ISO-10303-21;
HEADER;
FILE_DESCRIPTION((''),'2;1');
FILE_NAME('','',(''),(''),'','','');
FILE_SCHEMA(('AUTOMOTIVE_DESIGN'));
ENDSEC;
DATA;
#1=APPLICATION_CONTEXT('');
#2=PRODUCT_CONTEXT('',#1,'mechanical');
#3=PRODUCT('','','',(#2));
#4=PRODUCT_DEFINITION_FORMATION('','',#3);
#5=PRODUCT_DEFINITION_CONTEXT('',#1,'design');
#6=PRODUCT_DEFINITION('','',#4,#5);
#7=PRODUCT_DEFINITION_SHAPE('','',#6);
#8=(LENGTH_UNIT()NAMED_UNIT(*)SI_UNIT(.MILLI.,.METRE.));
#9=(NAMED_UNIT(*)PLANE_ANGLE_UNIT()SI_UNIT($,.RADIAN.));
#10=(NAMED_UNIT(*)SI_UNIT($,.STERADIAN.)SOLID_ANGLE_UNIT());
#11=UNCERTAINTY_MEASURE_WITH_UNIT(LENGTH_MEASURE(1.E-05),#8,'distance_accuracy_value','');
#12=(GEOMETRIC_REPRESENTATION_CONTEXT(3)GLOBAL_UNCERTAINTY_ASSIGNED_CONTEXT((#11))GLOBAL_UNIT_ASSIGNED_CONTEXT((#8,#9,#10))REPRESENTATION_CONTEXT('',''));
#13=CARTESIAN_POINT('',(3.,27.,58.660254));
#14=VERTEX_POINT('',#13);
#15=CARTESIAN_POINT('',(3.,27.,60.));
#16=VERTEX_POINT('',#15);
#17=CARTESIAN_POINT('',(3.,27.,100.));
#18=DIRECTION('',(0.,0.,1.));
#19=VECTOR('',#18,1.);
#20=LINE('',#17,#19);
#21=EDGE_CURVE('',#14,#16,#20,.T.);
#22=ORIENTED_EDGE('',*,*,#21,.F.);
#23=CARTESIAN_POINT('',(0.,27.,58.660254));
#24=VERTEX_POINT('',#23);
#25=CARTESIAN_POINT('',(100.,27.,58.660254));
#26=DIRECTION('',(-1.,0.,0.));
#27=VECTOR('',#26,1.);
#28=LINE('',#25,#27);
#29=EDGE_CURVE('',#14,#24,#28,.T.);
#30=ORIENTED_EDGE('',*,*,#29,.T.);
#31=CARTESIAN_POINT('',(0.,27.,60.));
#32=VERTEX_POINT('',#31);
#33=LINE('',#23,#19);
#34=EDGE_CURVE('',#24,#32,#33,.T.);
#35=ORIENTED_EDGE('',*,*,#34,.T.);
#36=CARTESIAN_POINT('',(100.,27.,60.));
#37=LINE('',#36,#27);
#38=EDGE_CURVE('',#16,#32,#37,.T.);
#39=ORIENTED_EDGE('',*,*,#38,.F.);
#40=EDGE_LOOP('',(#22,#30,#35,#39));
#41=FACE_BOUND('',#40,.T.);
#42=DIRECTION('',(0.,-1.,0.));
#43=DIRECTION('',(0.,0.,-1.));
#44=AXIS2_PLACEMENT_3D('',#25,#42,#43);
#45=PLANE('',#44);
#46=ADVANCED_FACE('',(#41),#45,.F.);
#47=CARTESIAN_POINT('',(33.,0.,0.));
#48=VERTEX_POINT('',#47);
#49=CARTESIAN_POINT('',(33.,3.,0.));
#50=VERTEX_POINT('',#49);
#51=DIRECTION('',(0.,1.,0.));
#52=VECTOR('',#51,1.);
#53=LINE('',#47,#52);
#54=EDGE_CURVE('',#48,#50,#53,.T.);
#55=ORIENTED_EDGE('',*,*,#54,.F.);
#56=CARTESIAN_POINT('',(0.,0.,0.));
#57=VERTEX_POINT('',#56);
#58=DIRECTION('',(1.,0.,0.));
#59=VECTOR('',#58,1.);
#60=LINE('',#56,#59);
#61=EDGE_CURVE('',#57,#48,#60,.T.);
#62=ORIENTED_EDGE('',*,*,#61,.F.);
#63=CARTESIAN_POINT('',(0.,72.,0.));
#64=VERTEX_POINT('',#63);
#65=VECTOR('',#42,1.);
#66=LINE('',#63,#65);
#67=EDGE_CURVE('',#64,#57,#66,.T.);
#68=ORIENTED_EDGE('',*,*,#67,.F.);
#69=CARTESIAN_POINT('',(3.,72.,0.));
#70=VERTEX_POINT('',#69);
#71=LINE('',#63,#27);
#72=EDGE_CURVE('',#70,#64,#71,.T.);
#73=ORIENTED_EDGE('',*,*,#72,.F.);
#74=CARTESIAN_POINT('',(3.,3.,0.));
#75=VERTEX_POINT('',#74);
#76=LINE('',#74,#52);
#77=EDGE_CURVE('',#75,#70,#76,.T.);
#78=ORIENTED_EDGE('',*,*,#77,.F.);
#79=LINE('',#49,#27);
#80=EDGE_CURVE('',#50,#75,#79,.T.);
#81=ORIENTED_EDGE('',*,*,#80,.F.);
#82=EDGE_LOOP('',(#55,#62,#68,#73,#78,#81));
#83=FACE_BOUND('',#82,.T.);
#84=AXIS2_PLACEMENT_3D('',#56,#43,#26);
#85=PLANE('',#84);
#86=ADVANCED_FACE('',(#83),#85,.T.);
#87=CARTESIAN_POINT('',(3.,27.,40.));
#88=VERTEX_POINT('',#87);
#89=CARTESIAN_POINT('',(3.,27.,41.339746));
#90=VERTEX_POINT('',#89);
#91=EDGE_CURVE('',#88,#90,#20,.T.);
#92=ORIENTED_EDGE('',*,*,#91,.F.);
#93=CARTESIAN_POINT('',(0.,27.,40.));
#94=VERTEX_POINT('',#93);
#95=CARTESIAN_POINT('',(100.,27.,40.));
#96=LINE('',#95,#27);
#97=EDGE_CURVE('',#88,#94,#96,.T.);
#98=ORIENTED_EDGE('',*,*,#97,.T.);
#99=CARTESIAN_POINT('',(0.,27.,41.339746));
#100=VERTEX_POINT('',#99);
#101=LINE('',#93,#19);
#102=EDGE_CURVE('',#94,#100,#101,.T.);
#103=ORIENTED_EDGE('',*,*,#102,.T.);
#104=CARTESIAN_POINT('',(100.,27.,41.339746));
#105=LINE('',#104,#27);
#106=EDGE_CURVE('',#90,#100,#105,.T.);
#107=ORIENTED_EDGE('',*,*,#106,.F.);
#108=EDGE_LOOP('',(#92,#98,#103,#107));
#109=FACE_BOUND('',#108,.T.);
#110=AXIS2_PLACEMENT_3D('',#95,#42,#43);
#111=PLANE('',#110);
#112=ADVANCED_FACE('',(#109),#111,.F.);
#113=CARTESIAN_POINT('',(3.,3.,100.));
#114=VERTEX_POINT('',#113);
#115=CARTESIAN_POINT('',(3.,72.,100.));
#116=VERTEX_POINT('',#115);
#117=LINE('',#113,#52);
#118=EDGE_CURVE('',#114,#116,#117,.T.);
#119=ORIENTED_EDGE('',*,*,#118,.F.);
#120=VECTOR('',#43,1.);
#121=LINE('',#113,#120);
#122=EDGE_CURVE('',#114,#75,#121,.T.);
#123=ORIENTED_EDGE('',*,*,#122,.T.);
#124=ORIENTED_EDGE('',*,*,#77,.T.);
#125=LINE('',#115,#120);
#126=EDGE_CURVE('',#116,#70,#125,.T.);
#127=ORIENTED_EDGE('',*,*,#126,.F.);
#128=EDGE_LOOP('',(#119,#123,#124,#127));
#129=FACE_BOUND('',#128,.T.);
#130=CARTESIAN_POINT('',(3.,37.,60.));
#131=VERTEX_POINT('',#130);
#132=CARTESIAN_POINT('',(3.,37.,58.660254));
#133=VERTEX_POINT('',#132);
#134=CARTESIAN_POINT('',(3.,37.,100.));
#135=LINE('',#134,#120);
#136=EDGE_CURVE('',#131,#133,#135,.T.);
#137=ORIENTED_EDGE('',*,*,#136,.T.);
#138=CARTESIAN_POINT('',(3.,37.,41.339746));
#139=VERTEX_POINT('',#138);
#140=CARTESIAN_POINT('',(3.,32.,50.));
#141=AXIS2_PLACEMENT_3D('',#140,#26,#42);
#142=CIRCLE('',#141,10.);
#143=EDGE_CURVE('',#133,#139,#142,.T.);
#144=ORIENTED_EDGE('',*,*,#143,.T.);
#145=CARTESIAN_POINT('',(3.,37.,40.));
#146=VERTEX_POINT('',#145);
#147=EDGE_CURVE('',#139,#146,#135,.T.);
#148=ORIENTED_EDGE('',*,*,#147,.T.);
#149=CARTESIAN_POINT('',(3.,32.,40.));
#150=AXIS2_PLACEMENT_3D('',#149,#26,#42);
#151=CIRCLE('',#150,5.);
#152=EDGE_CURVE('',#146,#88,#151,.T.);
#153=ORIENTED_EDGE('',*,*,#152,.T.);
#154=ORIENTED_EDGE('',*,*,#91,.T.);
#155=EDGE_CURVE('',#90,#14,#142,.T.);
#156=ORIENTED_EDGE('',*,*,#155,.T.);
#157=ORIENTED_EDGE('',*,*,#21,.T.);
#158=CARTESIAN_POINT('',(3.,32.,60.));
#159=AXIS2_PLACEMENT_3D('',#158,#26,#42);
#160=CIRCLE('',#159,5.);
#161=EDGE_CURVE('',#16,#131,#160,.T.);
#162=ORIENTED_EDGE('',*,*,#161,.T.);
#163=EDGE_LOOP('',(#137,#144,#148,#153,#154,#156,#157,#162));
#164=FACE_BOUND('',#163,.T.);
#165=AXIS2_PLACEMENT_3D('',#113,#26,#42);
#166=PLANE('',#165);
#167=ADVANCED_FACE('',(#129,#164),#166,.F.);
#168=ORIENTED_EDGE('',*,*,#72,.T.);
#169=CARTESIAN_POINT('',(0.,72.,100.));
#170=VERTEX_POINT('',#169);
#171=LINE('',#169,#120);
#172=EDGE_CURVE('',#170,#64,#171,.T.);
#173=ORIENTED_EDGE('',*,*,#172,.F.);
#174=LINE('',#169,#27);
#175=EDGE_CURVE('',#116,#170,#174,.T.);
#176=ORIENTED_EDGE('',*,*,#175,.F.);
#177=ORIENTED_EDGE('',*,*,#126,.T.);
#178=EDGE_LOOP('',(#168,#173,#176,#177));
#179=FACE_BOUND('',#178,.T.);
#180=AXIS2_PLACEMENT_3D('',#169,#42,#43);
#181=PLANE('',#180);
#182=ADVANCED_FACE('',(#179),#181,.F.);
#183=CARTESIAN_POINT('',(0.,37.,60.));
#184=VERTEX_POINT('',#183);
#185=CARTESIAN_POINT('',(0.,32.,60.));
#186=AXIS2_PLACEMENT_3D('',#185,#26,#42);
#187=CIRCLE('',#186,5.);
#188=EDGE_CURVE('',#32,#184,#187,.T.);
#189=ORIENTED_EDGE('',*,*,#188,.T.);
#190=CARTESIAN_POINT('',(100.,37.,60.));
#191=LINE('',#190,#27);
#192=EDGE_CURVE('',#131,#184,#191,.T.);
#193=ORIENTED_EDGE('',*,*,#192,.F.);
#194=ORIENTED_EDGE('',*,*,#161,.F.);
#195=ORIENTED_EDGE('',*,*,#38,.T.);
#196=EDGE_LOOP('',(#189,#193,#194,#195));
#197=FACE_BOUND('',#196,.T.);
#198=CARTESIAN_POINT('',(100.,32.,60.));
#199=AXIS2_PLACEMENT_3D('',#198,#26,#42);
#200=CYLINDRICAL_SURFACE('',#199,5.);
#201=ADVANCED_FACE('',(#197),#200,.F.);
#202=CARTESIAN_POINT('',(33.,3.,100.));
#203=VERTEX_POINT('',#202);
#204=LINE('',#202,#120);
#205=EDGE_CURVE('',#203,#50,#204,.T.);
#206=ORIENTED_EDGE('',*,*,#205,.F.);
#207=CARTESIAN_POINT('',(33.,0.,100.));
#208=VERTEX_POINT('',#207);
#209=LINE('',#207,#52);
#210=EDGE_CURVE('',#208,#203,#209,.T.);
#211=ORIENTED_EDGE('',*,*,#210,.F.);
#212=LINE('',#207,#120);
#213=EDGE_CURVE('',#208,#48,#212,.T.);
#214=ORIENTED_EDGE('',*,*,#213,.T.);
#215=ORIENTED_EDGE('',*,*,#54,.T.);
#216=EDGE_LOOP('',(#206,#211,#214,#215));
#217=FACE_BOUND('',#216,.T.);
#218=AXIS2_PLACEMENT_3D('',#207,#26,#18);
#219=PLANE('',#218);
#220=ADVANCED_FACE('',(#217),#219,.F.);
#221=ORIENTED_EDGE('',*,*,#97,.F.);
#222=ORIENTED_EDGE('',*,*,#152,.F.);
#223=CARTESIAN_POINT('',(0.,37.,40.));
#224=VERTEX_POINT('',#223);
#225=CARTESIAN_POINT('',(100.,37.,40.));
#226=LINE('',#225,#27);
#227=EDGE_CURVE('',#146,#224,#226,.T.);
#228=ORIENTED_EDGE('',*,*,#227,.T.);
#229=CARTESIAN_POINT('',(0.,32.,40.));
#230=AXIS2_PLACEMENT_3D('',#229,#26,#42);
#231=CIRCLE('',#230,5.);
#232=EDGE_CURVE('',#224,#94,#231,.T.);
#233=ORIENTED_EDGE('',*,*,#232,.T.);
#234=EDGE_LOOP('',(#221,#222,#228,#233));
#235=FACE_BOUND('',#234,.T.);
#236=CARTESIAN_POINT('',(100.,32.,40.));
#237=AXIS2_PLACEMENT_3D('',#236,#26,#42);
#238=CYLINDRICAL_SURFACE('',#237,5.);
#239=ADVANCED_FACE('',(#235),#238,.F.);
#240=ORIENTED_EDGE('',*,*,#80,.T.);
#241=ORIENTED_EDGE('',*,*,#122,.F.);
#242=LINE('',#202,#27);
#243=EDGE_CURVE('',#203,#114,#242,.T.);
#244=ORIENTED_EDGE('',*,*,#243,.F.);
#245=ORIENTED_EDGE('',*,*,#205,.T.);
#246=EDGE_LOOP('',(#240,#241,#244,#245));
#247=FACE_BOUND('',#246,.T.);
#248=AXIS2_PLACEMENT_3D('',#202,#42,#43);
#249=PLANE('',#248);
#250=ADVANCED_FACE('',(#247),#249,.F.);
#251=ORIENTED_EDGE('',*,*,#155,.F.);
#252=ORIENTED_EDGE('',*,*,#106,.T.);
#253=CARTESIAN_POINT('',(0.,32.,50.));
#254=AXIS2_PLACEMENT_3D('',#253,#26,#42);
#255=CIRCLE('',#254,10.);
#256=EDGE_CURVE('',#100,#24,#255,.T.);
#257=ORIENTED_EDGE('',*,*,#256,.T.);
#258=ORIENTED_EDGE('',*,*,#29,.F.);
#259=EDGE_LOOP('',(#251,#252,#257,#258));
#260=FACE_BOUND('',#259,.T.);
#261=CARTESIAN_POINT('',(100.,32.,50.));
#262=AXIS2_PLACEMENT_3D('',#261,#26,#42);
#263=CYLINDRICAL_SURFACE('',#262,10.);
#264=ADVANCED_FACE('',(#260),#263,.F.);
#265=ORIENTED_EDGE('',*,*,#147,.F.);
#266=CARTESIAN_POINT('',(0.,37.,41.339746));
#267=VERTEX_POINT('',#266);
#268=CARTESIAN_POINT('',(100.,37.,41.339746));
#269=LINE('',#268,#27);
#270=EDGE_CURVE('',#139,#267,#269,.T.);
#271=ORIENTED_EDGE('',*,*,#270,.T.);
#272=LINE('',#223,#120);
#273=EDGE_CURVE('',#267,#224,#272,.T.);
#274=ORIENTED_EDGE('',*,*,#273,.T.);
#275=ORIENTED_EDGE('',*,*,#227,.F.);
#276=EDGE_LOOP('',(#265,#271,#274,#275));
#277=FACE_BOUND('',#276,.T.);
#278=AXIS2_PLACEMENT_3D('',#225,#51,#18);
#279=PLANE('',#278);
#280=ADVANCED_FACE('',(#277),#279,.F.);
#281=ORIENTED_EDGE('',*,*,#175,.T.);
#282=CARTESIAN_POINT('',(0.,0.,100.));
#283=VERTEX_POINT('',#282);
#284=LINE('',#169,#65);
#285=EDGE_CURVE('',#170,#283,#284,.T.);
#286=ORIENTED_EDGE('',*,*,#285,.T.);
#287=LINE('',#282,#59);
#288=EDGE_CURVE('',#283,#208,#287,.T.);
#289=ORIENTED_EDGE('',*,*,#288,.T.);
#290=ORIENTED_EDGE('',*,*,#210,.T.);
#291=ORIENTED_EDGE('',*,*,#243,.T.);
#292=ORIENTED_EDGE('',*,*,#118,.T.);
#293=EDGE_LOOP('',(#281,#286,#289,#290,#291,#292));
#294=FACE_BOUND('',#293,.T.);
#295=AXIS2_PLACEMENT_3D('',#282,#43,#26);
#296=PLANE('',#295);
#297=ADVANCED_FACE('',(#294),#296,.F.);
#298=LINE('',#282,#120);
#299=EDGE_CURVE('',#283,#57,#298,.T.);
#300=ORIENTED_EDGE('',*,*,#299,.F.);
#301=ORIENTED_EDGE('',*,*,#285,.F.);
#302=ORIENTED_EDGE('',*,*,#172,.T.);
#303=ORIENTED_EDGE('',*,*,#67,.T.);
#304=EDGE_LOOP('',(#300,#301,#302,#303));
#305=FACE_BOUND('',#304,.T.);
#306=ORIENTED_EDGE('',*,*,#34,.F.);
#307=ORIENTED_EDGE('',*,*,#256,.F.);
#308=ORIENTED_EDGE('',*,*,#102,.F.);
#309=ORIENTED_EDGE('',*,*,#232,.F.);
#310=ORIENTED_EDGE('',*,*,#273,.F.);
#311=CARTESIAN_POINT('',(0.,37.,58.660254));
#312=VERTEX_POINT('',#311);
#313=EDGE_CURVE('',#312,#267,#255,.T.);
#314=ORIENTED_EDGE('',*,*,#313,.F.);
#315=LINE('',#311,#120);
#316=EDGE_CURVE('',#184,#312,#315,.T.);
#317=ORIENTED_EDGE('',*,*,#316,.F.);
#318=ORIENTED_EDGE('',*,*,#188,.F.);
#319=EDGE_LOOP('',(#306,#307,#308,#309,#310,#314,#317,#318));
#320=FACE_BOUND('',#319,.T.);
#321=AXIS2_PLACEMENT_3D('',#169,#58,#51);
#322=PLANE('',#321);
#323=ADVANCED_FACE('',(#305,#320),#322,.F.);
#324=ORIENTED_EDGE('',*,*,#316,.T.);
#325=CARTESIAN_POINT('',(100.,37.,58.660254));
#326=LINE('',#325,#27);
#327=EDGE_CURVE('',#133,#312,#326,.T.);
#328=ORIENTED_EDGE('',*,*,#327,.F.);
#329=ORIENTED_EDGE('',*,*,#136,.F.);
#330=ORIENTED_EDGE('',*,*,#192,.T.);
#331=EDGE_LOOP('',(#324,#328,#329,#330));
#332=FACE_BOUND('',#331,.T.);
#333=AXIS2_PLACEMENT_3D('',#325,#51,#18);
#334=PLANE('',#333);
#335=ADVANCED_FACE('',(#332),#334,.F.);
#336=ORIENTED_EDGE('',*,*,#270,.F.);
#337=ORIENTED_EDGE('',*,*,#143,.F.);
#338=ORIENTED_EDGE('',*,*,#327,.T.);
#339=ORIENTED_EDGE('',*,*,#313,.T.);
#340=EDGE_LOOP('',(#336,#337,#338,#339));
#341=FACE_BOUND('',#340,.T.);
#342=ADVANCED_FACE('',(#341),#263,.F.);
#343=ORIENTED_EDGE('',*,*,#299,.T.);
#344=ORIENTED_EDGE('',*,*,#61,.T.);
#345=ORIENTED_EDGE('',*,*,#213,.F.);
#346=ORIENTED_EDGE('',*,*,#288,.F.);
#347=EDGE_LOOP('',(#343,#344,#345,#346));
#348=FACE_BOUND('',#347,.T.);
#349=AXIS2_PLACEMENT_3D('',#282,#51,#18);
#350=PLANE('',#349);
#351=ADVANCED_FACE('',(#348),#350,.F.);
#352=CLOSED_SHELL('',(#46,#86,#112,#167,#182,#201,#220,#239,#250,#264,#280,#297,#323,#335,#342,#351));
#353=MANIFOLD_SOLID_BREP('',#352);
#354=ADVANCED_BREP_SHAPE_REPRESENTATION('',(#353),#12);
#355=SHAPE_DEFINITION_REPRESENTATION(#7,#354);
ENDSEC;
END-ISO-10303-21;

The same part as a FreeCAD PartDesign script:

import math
import FreeCAD as App
import Part
import Sketcher
Q = App.Units.Quantity

doc = App.newDocument("Part")
body = doc.addObject("PartDesign::Body", "Body")

# Sketch on XY plane
sketch1 = body.newObject("Sketcher::SketchObject", "Sketch")
sketch1.AttachmentSupport = (doc.getObject("XY_Plane"), [""])
sketch1.MapMode = "FlatFace"
sketch1.addGeometry([
    Part.LineSegment(App.Vector(3, 72, 0), App.Vector(0, 72, 0)),  # 0
    Part.LineSegment(App.Vector(0, 72, 0), App.Vector(0, 0, 0)),  # 1
    Part.LineSegment(App.Vector(0, 0, 0), App.Vector(33, 0, 0)),  # 2
    Part.LineSegment(App.Vector(33, 0, 0), App.Vector(33, 3, 0)),  # 3
    Part.LineSegment(App.Vector(33, 3, 0), App.Vector(3, 3, 0)),  # 4
    Part.LineSegment(App.Vector(3, 3, 0), App.Vector(3, 72, 0)),  # 5
], False)
sketch1.addConstraint([
    Sketcher.Constraint("Coincident", 0, 2, 1, 1),
    Sketcher.Constraint("Coincident", 1, 2, 2, 1),
    Sketcher.Constraint("Coincident", 2, 2, 3, 1),
    Sketcher.Constraint("Coincident", 3, 2, 4, 1),
    Sketcher.Constraint("Coincident", 4, 2, 5, 1),
    Sketcher.Constraint("Coincident", 5, 2, 0, 1),
    Sketcher.Constraint("Horizontal", 0),
    Sketcher.Constraint("Vertical", 1),
    Sketcher.Constraint("Horizontal", 2),
    Sketcher.Constraint("Vertical", 3),
    Sketcher.Constraint("Horizontal", 4),
    Sketcher.Constraint("Vertical", 5),
    Sketcher.Constraint("Coincident", 1, 2, -1, 1),
    Sketcher.Constraint("Equal", 0, 3),
    Sketcher.Constraint("DistanceX", 0, 2, 0, 1, Q("3 mm")),
    Sketcher.Constraint("DistanceX", 2, 1, 2, 2, Q("33 mm")),
    Sketcher.Constraint("DistanceY", 1, 2, 1, 1, Q("72 mm")),
])
pad1 = body.newObject("PartDesign::Pad", "Pad")
pad1.Profile = sketch1
pad1.Length = 100

# Sketch on YZ plane
sketch2 = body.newObject("Sketcher::SketchObject", "Sketch001")
sketch2.AttachmentSupport = (doc.getObject("YZ_Plane"), [""])
sketch2.MapMode = "FlatFace"
sketch2.addGeometry([
    Part.LineSegment(App.Vector(37, 60, 0), App.Vector(37, 58.7, 0)),  # 0
    Part.ArcOfCircle(Part.Circle(App.Vector(32, 50, 0), App.Vector(0, 0, 1), 10), math.radians(-60), math.radians(60)),  # 1
    Part.LineSegment(App.Vector(37, 41.3, 0), App.Vector(37, 40, 0)),  # 2
    Part.ArcOfCircle(Part.Circle(App.Vector(32, 40, 0), App.Vector(0, 0, 1), 5), math.radians(180), math.radians(360)),  # 3
    Part.LineSegment(App.Vector(27, 40, 0), App.Vector(27, 41.3, 0)),  # 4
    Part.ArcOfCircle(Part.Circle(App.Vector(32, 50, 0), App.Vector(0, 0, 1), 10), math.radians(120), math.radians(240)),  # 5
    Part.LineSegment(App.Vector(27, 58.7, 0), App.Vector(27, 60, 0)),  # 6
    Part.ArcOfCircle(Part.Circle(App.Vector(32, 60, 0), App.Vector(0, 0, 1), 5), math.radians(0), math.radians(180)),  # 7
], False)
sketch2.addConstraint([
    Sketcher.Constraint("Coincident", 0, 2, 1, 2),
    Sketcher.Constraint("Coincident", 1, 1, 2, 1),
    Sketcher.Constraint("Tangent", 2, 2, 3, 2),
    Sketcher.Constraint("Tangent", 3, 1, 4, 1),
    Sketcher.Constraint("Coincident", 4, 2, 5, 2),
    Sketcher.Constraint("Coincident", 5, 1, 6, 1),
    Sketcher.Constraint("Tangent", 6, 2, 7, 2),
    Sketcher.Constraint("Tangent", 7, 1, 0, 1),
    Sketcher.Constraint("Vertical", 0),
    Sketcher.Constraint("Vertical", 2),
    Sketcher.Constraint("Vertical", 4),
    Sketcher.Constraint("Vertical", 6),
    Sketcher.Constraint("Coincident", 5, 3, 1, 3),
    Sketcher.Constraint("Equal", 1, 5),
    Sketcher.Constraint("Equal", 3, 7),
    Sketcher.Constraint("Horizontal", 1, 1, 4, 2),
    Sketcher.Constraint("Horizontal", 0, 2, 5, 1),
    Sketcher.Constraint("Equal", 0, 2),
    Sketcher.Constraint("Radius", 1, Q("10 mm")),
    Sketcher.Constraint("Radius", 3, Q("5 mm")),
    Sketcher.Constraint("DistanceX", -1, 1, 1, 3, Q("32 mm")),
    Sketcher.Constraint("DistanceY", -1, 1, 1, 3, Q("50 mm")),
    Sketcher.Constraint("DistanceY", -1, 1, 3, 3, Q("40 mm")),
])
pocket1 = body.newObject("PartDesign::Pocket", "Pocket")
pocket1.Profile = sketch2
pocket1.Length = 100
pocket1.Reversed = True

doc.recompute()
